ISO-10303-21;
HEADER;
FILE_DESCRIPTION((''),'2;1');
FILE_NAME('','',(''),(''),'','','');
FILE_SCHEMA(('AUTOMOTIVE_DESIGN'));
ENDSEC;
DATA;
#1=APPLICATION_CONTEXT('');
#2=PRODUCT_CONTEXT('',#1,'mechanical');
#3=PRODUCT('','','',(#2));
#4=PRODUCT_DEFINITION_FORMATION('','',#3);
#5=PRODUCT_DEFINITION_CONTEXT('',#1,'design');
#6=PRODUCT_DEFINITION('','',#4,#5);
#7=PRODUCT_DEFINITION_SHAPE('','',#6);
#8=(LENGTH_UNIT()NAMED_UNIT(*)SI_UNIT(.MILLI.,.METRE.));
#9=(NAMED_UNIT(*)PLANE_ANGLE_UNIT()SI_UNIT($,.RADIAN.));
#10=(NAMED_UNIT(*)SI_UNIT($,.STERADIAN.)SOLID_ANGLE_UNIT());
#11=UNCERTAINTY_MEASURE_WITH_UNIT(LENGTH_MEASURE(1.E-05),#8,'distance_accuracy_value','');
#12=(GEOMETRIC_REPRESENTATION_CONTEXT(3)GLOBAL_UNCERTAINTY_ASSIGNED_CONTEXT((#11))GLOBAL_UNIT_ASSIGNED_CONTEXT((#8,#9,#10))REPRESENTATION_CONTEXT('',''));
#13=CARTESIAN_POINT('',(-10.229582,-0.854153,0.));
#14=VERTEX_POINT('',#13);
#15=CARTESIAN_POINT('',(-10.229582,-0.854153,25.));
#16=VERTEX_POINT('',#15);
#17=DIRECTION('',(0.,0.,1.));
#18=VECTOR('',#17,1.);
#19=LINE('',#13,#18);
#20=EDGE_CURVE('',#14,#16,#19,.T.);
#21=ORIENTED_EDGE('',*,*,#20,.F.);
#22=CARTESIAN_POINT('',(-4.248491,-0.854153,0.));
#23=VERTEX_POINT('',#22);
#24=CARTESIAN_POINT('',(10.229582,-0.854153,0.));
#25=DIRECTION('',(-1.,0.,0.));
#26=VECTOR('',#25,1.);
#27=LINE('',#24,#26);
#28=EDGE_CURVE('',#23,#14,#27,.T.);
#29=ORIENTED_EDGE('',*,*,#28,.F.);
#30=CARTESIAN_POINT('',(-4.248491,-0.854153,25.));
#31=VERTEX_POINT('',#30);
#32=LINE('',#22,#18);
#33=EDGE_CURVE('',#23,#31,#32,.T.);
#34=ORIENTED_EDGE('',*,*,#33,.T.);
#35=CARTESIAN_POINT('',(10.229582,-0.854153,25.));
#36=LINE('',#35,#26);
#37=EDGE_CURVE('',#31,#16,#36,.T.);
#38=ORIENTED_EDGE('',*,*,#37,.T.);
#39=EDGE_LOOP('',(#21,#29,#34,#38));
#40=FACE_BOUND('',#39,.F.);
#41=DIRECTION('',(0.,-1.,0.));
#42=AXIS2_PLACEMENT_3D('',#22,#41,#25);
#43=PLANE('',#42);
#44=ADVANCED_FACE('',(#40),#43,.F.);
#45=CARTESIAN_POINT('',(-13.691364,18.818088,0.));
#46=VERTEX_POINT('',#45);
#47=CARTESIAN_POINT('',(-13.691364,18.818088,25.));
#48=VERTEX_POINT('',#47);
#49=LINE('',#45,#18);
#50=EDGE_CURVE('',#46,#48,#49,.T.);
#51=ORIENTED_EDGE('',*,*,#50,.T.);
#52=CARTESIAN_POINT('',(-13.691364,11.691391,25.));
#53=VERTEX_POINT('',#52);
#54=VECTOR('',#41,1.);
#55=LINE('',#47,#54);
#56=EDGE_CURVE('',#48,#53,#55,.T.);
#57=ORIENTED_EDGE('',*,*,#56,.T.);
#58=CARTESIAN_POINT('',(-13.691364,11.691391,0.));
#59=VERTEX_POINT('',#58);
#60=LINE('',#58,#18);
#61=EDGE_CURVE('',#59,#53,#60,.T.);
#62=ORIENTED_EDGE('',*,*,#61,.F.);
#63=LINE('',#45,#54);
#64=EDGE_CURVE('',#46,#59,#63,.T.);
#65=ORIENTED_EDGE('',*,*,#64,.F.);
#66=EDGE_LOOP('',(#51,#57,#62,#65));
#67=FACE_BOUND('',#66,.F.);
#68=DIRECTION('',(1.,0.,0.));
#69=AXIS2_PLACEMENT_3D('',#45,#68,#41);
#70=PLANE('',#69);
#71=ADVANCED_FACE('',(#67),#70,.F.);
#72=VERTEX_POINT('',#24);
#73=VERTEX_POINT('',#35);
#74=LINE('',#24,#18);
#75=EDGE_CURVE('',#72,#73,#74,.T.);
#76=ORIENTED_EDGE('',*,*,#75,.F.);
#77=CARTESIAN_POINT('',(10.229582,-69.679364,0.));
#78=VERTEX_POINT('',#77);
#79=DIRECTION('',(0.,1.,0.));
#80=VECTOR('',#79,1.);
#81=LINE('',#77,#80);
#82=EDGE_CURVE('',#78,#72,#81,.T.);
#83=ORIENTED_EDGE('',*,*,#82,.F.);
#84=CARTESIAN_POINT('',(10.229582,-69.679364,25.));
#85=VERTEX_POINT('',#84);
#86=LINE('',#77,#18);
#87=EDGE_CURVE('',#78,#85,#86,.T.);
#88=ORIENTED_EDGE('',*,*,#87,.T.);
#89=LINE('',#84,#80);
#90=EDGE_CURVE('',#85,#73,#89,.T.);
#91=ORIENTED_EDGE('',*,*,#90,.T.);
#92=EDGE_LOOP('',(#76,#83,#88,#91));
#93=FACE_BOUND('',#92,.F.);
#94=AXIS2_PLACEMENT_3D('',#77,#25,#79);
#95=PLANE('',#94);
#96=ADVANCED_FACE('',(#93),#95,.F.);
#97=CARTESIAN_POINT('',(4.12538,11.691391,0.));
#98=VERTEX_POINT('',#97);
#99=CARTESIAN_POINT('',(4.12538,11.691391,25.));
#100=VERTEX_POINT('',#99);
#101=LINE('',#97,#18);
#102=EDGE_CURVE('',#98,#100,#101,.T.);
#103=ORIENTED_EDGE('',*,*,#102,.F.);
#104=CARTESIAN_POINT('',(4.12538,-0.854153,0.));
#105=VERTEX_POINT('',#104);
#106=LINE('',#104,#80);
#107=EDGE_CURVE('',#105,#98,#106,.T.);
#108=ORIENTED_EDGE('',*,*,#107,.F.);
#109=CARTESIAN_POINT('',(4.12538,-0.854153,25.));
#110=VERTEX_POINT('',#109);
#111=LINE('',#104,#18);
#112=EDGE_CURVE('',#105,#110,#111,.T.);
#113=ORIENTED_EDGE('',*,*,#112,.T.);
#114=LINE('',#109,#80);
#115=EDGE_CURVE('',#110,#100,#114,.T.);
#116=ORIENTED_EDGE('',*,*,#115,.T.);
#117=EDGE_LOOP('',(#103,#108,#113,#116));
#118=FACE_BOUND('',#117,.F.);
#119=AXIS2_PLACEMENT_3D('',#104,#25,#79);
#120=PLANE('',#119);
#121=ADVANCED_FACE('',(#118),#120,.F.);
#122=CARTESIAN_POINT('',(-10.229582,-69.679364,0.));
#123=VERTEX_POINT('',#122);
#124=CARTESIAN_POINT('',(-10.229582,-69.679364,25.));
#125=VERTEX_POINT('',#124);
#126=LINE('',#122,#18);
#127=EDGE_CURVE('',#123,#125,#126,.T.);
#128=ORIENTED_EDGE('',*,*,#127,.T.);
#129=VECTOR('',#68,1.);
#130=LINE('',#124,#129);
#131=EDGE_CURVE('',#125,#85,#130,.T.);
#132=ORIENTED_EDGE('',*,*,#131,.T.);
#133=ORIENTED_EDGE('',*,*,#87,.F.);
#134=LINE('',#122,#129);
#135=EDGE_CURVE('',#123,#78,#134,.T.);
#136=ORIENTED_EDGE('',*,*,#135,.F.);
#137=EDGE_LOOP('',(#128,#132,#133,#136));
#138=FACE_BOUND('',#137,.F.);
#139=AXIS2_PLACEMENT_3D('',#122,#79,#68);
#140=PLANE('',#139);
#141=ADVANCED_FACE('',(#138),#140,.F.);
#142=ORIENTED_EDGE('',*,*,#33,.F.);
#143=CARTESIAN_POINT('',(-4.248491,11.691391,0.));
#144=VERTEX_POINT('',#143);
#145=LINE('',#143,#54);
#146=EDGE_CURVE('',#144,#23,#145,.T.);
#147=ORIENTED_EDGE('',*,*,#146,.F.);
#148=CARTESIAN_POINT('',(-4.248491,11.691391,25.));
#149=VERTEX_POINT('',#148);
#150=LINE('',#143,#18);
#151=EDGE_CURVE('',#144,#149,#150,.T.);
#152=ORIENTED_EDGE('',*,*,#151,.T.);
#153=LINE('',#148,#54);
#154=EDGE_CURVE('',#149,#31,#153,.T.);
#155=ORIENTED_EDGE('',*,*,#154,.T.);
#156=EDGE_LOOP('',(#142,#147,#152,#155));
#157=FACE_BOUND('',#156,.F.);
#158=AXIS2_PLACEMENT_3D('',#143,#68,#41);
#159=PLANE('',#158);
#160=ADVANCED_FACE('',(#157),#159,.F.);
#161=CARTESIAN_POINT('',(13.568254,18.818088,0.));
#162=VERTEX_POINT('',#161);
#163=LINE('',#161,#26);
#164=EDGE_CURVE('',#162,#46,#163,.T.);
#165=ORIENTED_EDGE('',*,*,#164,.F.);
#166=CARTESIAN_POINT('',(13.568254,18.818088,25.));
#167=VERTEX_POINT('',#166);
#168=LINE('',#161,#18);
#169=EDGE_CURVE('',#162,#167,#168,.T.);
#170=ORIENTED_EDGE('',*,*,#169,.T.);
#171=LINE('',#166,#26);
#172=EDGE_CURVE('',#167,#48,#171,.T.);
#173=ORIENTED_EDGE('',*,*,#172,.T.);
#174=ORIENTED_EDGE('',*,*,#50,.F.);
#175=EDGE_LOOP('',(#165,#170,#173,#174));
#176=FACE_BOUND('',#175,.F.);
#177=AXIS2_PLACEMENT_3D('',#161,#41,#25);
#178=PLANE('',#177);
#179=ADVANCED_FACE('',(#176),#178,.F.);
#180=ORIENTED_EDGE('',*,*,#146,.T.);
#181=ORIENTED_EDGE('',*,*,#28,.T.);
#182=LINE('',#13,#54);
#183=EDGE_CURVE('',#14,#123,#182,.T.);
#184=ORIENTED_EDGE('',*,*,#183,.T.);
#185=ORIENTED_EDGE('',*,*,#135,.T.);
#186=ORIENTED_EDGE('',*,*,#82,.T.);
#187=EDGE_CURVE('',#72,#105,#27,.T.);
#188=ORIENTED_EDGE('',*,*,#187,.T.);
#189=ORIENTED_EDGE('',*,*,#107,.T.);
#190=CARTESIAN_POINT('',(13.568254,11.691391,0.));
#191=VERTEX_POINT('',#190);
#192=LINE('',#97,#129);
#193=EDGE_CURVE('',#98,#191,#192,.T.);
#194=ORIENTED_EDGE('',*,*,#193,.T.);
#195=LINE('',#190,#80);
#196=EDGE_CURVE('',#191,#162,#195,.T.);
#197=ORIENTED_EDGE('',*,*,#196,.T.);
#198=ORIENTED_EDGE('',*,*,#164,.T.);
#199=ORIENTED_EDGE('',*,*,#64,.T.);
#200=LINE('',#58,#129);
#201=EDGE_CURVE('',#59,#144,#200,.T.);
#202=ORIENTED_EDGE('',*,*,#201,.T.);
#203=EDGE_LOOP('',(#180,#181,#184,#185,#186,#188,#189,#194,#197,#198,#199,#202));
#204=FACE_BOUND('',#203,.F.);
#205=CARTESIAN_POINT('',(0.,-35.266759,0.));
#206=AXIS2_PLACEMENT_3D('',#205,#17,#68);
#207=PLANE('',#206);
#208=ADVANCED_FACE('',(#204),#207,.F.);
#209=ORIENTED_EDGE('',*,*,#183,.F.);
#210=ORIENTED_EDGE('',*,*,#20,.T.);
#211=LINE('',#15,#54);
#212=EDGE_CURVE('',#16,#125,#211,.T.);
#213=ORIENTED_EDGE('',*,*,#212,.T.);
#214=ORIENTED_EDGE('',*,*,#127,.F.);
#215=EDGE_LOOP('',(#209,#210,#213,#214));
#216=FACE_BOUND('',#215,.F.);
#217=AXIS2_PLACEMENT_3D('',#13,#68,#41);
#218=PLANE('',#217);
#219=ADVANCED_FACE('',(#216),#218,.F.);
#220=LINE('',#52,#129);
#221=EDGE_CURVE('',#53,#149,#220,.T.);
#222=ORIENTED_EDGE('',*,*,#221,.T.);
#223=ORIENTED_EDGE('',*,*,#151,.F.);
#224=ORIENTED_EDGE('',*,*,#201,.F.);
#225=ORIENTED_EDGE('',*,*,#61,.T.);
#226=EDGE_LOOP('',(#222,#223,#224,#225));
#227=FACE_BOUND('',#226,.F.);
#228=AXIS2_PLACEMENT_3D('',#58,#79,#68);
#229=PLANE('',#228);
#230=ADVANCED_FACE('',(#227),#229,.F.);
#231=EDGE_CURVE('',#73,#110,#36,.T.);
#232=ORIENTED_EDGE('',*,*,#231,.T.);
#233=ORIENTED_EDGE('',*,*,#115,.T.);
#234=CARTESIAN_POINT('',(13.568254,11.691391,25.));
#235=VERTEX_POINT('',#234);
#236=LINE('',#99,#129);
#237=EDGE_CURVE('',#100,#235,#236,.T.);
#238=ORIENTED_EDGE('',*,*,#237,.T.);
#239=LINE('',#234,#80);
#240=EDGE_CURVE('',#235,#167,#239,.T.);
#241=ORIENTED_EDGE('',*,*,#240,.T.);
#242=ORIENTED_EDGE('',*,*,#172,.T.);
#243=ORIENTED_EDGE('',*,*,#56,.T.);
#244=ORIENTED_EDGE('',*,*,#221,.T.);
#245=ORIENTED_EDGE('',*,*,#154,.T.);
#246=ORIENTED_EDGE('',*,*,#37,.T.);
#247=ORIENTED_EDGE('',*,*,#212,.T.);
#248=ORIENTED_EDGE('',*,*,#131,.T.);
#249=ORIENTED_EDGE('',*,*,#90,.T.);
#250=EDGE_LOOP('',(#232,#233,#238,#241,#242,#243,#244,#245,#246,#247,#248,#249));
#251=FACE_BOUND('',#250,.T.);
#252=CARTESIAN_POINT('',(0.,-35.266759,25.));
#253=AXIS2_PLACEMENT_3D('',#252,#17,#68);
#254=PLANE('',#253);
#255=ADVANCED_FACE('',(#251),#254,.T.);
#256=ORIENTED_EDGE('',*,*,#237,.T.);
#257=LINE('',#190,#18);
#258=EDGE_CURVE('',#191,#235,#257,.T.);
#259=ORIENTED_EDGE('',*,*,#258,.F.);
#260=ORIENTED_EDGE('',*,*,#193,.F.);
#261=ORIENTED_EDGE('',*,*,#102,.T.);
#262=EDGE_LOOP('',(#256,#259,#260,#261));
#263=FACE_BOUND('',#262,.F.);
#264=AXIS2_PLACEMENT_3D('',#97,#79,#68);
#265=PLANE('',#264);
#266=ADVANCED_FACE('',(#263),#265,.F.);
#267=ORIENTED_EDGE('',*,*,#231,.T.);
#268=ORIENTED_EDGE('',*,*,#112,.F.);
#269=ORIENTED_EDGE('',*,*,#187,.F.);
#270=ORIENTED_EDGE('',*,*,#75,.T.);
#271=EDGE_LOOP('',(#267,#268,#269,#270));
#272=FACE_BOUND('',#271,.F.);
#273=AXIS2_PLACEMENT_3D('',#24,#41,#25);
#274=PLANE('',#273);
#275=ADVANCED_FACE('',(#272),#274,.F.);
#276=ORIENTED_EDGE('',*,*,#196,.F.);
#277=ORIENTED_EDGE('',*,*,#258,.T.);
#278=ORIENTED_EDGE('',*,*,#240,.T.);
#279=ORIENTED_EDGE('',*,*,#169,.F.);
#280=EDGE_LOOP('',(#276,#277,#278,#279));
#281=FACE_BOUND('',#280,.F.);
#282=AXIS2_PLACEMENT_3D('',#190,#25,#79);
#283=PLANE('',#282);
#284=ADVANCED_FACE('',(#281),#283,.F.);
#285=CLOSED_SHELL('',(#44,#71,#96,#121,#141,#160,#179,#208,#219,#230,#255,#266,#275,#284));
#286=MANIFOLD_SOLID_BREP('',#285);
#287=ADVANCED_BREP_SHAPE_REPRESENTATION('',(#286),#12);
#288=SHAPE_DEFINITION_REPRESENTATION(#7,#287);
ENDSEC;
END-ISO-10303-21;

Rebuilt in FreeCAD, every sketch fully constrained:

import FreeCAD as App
import Part
import Sketcher
from FreeCAD import Vector
Q = App.Units.Quantity

doc = App.newDocument("Part")
body = doc.addObject("PartDesign::Body", "Body")

# Sketch on XY plane
sketch1 = body.newObject("Sketcher::SketchObject", "Sketch")
sketch1.AttachmentSupport = (doc.getObject("XY_Plane"), [""])
sketch1.MapMode = "FlatFace"
sketch1.addGeometry(Part.LineSegment(Vector(10, -70, 0), Vector(10, -1, 0)), False)
sketch1.addGeometry(Part.LineSegment(Vector(10, -1, 0), Vector(4, -1, 0)), False)
sketch1.addGeometry(Part.LineSegment(Vector(4, -1, 0), Vector(4, 12, 0)), False)
sketch1.addGeometry(Part.LineSegment(Vector(4, 12, 0), Vector(14, 12, 0)), False)
sketch1.addGeometry(Part.LineSegment(Vector(14, 12, 0), Vector(14, 19, 0)), False)
sketch1.addGeometry(Part.LineSegment(Vector(14, 19, 0), Vector(-14, 19, 0)), False)
sketch1.addGeometry(Part.LineSegment(Vector(-14, 19, 0), Vector(-14, 12, 0)), False)
sketch1.addGeometry(Part.LineSegment(Vector(-14, 12, 0), Vector(-4, 12, 0)), False)
sketch1.addGeometry(Part.LineSegment(Vector(-4, 12, 0), Vector(-4, -1, 0)), False)
sketch1.addGeometry(Part.LineSegment(Vector(-4, -1, 0), Vector(-10, -1, 0)), False)
sketch1.addGeometry(Part.LineSegment(Vector(-10, -1, 0), Vector(-10, -70, 0)), False)
sketch1.addGeometry(Part.LineSegment(Vector(-10, -70, 0), Vector(10, -70, 0)), False)
sketch1.addConstraint(Sketcher.Constraint("Coincident", 0, 2, 1, 1))
sketch1.addConstraint(Sketcher.Constraint("Coincident", 1, 2, 2, 1))
sketch1.addConstraint(Sketcher.Constraint("Coincident", 2, 2, 3, 1))
sketch1.addConstraint(Sketcher.Constraint("Coincident", 3, 2, 4, 1))
sketch1.addConstraint(Sketcher.Constraint("Coincident", 4, 2, 5, 1))
sketch1.addConstraint(Sketcher.Constraint("Coincident", 5, 2, 6, 1))
sketch1.addConstraint(Sketcher.Constraint("Coincident", 6, 2, 7, 1))
sketch1.addConstraint(Sketcher.Constraint("Coincident", 7, 2, 8, 1))
sketch1.addConstraint(Sketcher.Constraint("Coincident", 8, 2, 9, 1))
sketch1.addConstraint(Sketcher.Constraint("Coincident", 9, 2, 10, 1))
sketch1.addConstraint(Sketcher.Constraint("Coincident", 10, 2, 11, 1))
sketch1.addConstraint(Sketcher.Constraint("Coincident", 11, 2, 0, 1))
sketch1.addConstraint(Sketcher.Constraint("Vertical", 0))
sketch1.addConstraint(Sketcher.Constraint("Horizontal", 1))
sketch1.addConstraint(Sketcher.Constraint("Vertical", 2))
sketch1.addConstraint(Sketcher.Constraint("Horizontal", 3))
sketch1.addConstraint(Sketcher.Constraint("Vertical", 4))
sketch1.addConstraint(Sketcher.Constraint("Horizontal", 5))
sketch1.addConstraint(Sketcher.Constraint("Vertical", 6))
sketch1.addConstraint(Sketcher.Constraint("Horizontal", 7))
sketch1.addConstraint(Sketcher.Constraint("Vertical", 8))
sketch1.addConstraint(Sketcher.Constraint("Horizontal", 9))
sketch1.addConstraint(Sketcher.Constraint("Vertical", 10))
sketch1.addConstraint(Sketcher.Constraint("Horizontal", 11))
sketch1.addConstraint(Sketcher.Constraint("Symmetric", 0, 2, 9, 2, -2))
sketch1.addConstraint(Sketcher.Constraint("Horizontal", 3, 2, 6, 2))
sketch1.addConstraint(Sketcher.Constraint("Equal", 3, 7))
sketch1.addConstraint(Sketcher.Constraint("DistanceX", 9, 2, 9, 1, Q("5.981091 mm")))
sketch1.addConstraint(Sketcher.Constraint("DistanceY", 0, 1, 0, 2, Q("68.825211 mm")))
sketch1.addConstraint(Sketcher.Constraint("DistanceX", 1, 2, 1, 1, Q("6.104202 mm")))
sketch1.addConstraint(Sketcher.Constraint("DistanceX", 3, 1, 3, 2, Q("9.442874 mm")))
sketch1.addConstraint(Sketcher.Constraint("DistanceX", 5, 2, 5, 1, Q("27.259618 mm")))
sketch1.addConstraint(Sketcher.Constraint("DistanceY", 2, 1, 2, 2, Q("12.545544 mm")))
sketch1.addConstraint(Sketcher.Constraint("DistanceY", 4, 1, 4, 2, Q("7.126697 mm")))
sketch1.addConstraint(Sketcher.Constraint("DistanceY", -1, 1, 2, 2, Q("11.691391 mm")))
pad1 = body.newObject("PartDesign::Pad", "Pad")
pad1.Profile = sketch1
pad1.Length = 25

doc.recompute()
